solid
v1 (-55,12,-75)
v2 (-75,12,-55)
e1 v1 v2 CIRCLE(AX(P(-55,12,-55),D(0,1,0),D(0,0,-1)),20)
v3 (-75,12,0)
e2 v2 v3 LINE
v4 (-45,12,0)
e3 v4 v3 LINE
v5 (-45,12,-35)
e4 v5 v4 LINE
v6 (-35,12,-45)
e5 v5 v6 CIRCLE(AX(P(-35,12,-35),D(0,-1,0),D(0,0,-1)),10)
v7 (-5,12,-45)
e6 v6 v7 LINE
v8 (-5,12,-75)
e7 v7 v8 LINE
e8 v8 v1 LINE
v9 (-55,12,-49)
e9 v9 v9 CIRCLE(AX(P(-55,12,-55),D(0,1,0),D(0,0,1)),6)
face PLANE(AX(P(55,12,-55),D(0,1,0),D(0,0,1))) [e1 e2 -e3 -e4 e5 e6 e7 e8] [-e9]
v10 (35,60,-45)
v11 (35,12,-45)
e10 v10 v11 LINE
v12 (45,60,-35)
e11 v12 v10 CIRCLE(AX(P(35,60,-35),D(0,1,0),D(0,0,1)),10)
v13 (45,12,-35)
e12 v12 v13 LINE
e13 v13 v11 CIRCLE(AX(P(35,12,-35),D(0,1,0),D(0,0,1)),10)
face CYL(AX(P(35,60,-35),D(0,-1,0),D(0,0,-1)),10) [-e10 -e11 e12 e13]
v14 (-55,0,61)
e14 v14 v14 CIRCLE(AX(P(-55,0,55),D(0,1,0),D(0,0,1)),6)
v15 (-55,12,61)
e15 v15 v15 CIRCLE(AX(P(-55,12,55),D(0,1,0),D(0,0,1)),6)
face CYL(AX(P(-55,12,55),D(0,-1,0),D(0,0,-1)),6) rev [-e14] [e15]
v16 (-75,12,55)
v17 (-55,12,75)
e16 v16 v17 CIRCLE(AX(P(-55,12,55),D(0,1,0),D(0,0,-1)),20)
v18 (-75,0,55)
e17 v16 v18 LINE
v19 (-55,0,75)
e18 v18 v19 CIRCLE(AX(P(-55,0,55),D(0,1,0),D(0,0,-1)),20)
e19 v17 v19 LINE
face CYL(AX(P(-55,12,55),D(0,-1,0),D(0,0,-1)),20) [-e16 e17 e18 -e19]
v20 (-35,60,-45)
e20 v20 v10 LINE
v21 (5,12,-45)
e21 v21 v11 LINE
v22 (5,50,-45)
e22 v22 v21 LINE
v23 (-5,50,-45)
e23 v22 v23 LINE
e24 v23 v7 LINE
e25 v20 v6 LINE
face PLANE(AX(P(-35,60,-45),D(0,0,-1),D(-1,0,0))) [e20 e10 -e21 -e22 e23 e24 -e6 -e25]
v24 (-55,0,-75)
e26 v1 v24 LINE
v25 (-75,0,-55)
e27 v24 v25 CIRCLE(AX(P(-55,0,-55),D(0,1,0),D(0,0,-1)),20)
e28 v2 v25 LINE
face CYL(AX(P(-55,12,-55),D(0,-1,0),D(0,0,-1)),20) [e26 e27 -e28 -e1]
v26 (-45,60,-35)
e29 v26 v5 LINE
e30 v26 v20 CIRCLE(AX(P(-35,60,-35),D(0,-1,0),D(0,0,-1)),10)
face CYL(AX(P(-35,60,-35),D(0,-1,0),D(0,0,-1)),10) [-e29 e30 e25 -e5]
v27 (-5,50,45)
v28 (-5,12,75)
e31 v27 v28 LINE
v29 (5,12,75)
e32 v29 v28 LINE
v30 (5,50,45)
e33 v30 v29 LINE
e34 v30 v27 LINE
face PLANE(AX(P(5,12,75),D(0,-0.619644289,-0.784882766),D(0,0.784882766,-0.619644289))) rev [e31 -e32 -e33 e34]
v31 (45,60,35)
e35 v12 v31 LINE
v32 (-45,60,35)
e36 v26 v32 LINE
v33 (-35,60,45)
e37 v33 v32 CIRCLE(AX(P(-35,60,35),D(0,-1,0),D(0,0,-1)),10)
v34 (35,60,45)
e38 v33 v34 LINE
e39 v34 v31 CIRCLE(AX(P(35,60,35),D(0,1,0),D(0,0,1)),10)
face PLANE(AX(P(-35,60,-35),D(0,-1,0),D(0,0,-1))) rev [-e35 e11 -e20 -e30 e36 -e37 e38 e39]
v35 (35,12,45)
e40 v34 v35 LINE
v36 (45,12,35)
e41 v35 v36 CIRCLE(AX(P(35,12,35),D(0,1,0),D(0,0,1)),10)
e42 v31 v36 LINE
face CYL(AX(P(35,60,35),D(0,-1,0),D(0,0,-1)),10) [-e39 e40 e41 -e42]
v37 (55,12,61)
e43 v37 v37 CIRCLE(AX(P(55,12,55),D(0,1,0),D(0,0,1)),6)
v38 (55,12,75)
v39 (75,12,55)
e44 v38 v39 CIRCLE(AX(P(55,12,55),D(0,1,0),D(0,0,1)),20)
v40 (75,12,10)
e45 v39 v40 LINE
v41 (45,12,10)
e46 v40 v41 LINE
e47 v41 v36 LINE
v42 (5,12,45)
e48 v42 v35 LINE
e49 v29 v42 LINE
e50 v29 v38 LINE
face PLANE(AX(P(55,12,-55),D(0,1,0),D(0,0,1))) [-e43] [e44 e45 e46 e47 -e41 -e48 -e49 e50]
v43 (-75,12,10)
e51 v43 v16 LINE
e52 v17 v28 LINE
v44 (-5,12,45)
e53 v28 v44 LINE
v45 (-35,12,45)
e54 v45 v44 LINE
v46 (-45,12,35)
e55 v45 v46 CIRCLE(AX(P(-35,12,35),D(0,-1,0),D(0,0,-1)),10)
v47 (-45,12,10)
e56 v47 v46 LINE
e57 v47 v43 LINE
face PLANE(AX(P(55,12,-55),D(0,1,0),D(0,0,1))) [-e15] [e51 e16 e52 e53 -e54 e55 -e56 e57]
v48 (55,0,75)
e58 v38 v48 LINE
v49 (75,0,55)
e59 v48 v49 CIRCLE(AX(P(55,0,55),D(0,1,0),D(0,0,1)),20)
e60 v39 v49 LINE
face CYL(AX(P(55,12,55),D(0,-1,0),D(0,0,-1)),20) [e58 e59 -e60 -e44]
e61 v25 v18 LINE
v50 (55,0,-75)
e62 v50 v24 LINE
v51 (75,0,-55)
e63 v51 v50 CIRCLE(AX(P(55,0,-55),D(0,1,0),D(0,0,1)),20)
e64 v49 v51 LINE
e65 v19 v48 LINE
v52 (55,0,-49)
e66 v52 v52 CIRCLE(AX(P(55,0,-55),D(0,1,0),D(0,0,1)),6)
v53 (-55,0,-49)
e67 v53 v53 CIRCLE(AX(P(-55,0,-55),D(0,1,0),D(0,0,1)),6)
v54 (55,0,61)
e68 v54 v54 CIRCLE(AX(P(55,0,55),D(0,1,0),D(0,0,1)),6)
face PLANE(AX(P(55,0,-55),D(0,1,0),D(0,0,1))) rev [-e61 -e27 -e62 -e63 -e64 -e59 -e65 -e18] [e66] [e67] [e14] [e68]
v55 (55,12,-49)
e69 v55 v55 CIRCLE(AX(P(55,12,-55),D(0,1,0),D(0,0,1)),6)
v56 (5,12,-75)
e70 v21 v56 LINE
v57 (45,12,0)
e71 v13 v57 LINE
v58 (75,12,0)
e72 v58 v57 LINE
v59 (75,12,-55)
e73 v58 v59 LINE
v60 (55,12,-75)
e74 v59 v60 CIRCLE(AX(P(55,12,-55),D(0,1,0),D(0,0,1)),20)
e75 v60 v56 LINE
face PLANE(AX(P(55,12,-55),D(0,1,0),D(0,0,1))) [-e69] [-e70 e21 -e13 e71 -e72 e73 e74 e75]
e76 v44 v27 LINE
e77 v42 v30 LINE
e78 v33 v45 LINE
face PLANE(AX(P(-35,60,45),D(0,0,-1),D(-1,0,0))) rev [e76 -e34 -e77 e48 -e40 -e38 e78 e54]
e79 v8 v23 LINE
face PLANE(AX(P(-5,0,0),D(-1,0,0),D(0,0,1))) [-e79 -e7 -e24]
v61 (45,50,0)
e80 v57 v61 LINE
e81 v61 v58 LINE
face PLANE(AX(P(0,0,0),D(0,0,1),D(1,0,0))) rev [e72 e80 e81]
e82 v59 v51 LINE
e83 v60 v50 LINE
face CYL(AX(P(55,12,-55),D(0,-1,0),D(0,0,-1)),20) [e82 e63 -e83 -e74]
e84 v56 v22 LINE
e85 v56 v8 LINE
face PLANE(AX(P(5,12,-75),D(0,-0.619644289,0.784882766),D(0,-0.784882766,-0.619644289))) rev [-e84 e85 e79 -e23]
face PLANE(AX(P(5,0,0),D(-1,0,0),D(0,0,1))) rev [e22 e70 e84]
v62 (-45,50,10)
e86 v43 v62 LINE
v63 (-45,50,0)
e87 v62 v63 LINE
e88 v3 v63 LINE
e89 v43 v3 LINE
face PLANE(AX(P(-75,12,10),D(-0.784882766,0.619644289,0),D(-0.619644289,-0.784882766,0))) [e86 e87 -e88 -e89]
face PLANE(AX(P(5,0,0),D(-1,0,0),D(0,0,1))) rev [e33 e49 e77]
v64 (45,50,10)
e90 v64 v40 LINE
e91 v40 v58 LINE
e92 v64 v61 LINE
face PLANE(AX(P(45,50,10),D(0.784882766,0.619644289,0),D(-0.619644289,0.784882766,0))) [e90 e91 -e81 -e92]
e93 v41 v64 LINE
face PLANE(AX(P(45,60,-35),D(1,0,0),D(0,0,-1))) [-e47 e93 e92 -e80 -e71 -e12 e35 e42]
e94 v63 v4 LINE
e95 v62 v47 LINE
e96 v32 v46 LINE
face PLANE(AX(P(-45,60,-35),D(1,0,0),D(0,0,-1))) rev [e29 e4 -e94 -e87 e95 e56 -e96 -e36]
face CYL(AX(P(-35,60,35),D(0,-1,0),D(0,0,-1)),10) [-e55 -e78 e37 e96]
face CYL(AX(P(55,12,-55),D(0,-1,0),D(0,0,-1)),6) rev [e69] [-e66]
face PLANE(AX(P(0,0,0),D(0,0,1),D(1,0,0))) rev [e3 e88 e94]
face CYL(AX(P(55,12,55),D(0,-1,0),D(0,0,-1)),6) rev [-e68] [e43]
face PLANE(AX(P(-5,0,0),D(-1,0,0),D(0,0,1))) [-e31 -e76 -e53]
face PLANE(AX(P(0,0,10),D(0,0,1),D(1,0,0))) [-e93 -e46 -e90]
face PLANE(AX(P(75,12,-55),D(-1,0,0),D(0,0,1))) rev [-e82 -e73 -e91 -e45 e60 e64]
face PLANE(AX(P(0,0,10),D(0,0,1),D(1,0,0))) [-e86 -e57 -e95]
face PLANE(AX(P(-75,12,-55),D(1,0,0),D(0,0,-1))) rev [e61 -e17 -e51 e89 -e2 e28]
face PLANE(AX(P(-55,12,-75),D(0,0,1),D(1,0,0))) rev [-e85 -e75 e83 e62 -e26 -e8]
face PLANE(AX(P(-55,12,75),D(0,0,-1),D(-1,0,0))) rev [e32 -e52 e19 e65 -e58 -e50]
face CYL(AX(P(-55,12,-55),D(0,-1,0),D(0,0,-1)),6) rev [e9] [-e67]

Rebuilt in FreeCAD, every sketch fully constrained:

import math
import FreeCAD as App
import Part
import Sketcher
from FreeCAD import Vector
Q = App.Units.Quantity


def add_polygon(sketch, points):
    """Adds a closed chain of lines whose ends are joined by coincident constraints."""
    first, n = sketch.GeometryCount, len(points)
    for a, b in zip(points, points[1:] + points[:1]):
        sketch.addGeometry(Part.LineSegment(App.Vector(*a, 0), App.Vector(*b, 0)), False)
    for i in range(n):
        sketch.addConstraint(Sketcher.Constraint("Coincident", first + i, 2, first + (i + 1) % n, 1))

doc = App.newDocument("Part")
params = doc.addObject("Spreadsheet::Sheet", "Params")
for row, (alias, value) in enumerate([
    ("sketch1_diameter", "12 mm"),
    ("sketch1_radius", "20 mm"),
    ("sketch1_width", "110 mm"),
    ("pad1_length", "12 mm"),
    ("sketch2_radius", "10 mm"),
    ("sketch2_width", "70 mm"),
    ("pad2_length", "48 mm"),
    ("sketch3_width", "38 mm"),
    ("sketch3_height", "30 mm"),
    ("pad3_length", "10 mm"),
    ("sketch4_width", "30 mm"),
    ("sketch4_height", "38 mm"),
    ("pad4_length", "10 mm"),
], start=1):
    params.set(f"A{row}", alias)
    params.set(f"B{row}", "=" + value)
    params.setAlias(f"B{row}", alias)

body = doc.addObject("PartDesign::Body", "Body")

# Sketch on XZ plane
sketch1 = body.newObject("Sketcher::SketchObject", "Sketch")
sketch1.AttachmentSupport = (doc.getObject("XZ_Plane"), [""])
sketch1.MapMode = "FlatFace"
sketch1.addGeometry([
    Part.LineSegment(Vector(55, -75, 0), Vector(-55, -75, 0)),  # 0
    Part.ArcOfCircle(Part.Circle(Vector(-55, -55, 0), Vector(0, 0, 1), 20), math.radians(180), math.radians(270)),  # 1
    Part.LineSegment(Vector(-75, -55, 0), Vector(-75, 55, 0)),  # 2
    Part.ArcOfCircle(Part.Circle(Vector(-55, 55, 0), Vector(0, 0, 1), 20), math.radians(90), math.radians(180)),  # 3
    Part.LineSegment(Vector(-55, 75, 0), Vector(55, 75, 0)),  # 4
    Part.ArcOfCircle(Part.Circle(Vector(55, 55, 0), Vector(0, 0, 1), 20), math.radians(0), math.radians(90)),  # 5
    Part.LineSegment(Vector(75, 55, 0), Vector(75, -55, 0)),  # 6
    Part.ArcOfCircle(Part.Circle(Vector(55, -55, 0), Vector(0, 0, 1), 20), math.radians(-90), math.radians(0)),  # 7
    Part.Circle(Vector(55, 55, 0), Vector(0, 0, 1), 6),  # 8
    Part.Circle(Vector(-55, 55, 0), Vector(0, 0, 1), 6),  # 9
    Part.Circle(Vector(55, -55, 0), Vector(0, 0, 1), 6),  # 10
    Part.Circle(Vector(-55, -55, 0), Vector(0, 0, 1), 6),  # 11
], False)
sketch1.addConstraint([
    Sketcher.Constraint("Tangent", 0, 2, 1, 2),
    Sketcher.Constraint("Tangent", 1, 1, 2, 1),
    Sketcher.Constraint("Tangent", 2, 2, 3, 2),
    Sketcher.Constraint("Tangent", 3, 1, 4, 1),
    Sketcher.Constraint("Tangent", 4, 2, 5, 2),
    Sketcher.Constraint("Tangent", 5, 1, 6, 1),
    Sketcher.Constraint("Tangent", 6, 2, 7, 2),
    Sketcher.Constraint("Tangent", 7, 1, 0, 1),
    Sketcher.Constraint("Horizontal", 0),
    Sketcher.Constraint("Vertical", 2),
    Sketcher.Constraint("Horizontal", 4),
    Sketcher.Constraint("Vertical", 6),
    Sketcher.Constraint("Coincident", 8, 3, 5, 3),
    Sketcher.Constraint("Coincident", 9, 3, 3, 3),
    Sketcher.Constraint("Coincident", 10, 3, 7, 3),
    Sketcher.Constraint("Coincident", 11, 3, 1, 3),
    Sketcher.Constraint("Equal", 1, 3),
    Sketcher.Constraint("Equal", 3, 5),
    Sketcher.Constraint("Equal", 5, 7),
    Sketcher.Constraint("Equal", 8, 9),
    Sketcher.Constraint("Equal", 9, 10),
    Sketcher.Constraint("Equal", 10, 11),
    Sketcher.Constraint("Symmetric", 1, 3, 5, 3, -1, 1),
    Sketcher.Constraint("Equal", 4, 2),
    Sketcher.Constraint("Diameter", 8, Q("12 mm")),
    Sketcher.Constraint("Radius", 1, Q("20 mm")),
    Sketcher.Constraint("DistanceX", 0, 2, 0, 1, Q("110 mm")),
])
sketch1.setExpression("Constraints[24]", "Params.sketch1_diameter")
sketch1.setExpression("Constraints[25]", "Params.sketch1_radius")
sketch1.setExpression("Constraints[26]", "Params.sketch1_width")
pad1 = body.newObject("PartDesign::Pad", "Pad")
pad1.Profile = sketch1
pad1.setExpression("Length", "Params.pad1_length")
pad1.Reversed = True

# Sketch on XZ plane
sketch2 = body.newObject("Sketcher::SketchObject", "Sketch001")
sketch2.AttachmentSupport = (doc.getObject("XZ_Plane"), [""])
sketch2.MapMode = "FlatFace"
sketch2.AttachmentOffset = App.Placement(Vector(0, 0, -12), App.Rotation())
sketch2.addGeometry([
    Part.LineSegment(Vector(35, -45, 0), Vector(-35, -45, 0)),  # 0
    Part.ArcOfCircle(Part.Circle(Vector(-35, -35, 0), Vector(0, 0, 1), 10), math.radians(180), math.radians(270)),  # 1
    Part.LineSegment(Vector(-45, -35, 0), Vector(-45, 35, 0)),  # 2
    Part.ArcOfCircle(Part.Circle(Vector(-35, 35, 0), Vector(0, 0, 1), 10), math.radians(90), math.radians(180)),  # 3
    Part.LineSegment(Vector(-35, 45, 0), Vector(35, 45, 0)),  # 4
    Part.ArcOfCircle(Part.Circle(Vector(35, 35, 0), Vector(0, 0, 1), 10), math.radians(0), math.radians(90)),  # 5
    Part.LineSegment(Vector(45, 35, 0), Vector(45, -35, 0)),  # 6
    Part.ArcOfCircle(Part.Circle(Vector(35, -35, 0), Vector(0, 0, 1), 10), math.radians(-90), math.radians(0)),  # 7
], False)
sketch2.addConstraint([
    Sketcher.Constraint("Tangent", 0, 2, 1, 2),
    Sketcher.Constraint("Tangent", 1, 1, 2, 1),
    Sketcher.Constraint("Tangent", 2, 2, 3, 2),
    Sketcher.Constraint("Tangent", 3, 1, 4, 1),
    Sketcher.Constraint("Tangent", 4, 2, 5, 2),
    Sketcher.Constraint("Tangent", 5, 1, 6, 1),
    Sketcher.Constraint("Tangent", 6, 2, 7, 2),
    Sketcher.Constraint("Tangent", 7, 1, 0, 1),
    Sketcher.Constraint("Horizontal", 0),
    Sketcher.Constraint("Vertical", 2),
    Sketcher.Constraint("Horizontal", 4),
    Sketcher.Constraint("Vertical", 6),
    Sketcher.Constraint("Equal", 1, 3),
    Sketcher.Constraint("Equal", 3, 5),
    Sketcher.Constraint("Equal", 5, 7),
    Sketcher.Constraint("Symmetric", 1, 3, 5, 3, -1, 1),
    Sketcher.Constraint("Equal", 4, 2),
    Sketcher.Constraint("Radius", 1, Q("10 mm")),
    Sketcher.Constraint("DistanceX", 0, 2, 0, 1, Q("70 mm")),
])
sketch2.setExpression("Constraints[17]", "Params.sketch2_radius")
sketch2.setExpression("Constraints[18]", "Params.sketch2_width")
pad2 = body.newObject("PartDesign::Pad", "Pad001")
pad2.Profile = sketch2
pad2.setExpression("Length", "Params.pad2_length")
pad2.Reversed = True

# Sketch on YZ plane
sketch3 = body.newObject("Sketcher::SketchObject", "Sketch002")
sketch3.AttachmentSupport = (doc.getObject("YZ_Plane"), [""])
sketch3.MapMode = "FlatFace"
add_polygon(sketch3, [(50, -45), (12, -45), (12, -75)])  # lines 0-2
add_polygon(sketch3, [(12, 75), (12, 45), (50, 45)])  # lines 3-5
sketch3.addConstraint([
    Sketcher.Constraint("Horizontal", 0),
    Sketcher.Constraint("Vertical", 1),
    Sketcher.Constraint("Vertical", 3),
    Sketcher.Constraint("Horizontal", 4),
    Sketcher.Constraint("Symmetric", 0, 2, 3, 2, -1),
    Sketcher.Constraint("Vertical", 2, 2, 4, 2),
    Sketcher.Constraint("Equal", 1, 3),
    Sketcher.Constraint("DistanceX", 0, 2, 0, 1, Q("38 mm")),
    Sketcher.Constraint("DistanceY", 1, 2, 1, 1, Q("30 mm")),
    Sketcher.Constraint("DistanceX", -1, 1, 0, 2, Q("12 mm")),
    Sketcher.Constraint("DistanceY", 0, 2, -1, 1, Q("45 mm")),
])
sketch3.setExpression("Constraints[13]", "Params.sketch3_width")
sketch3.setExpression("Constraints[14]", "Params.sketch3_height")
pad3 = body.newObject("PartDesign::Pad", "Pad002")
pad3.Profile = sketch3
pad3.setExpression("Length", "Params.pad3_length")
pad3.Midplane = True

# Sketch on XY plane
sketch4 = body.newObject("Sketcher::SketchObject", "Sketch003")
sketch4.AttachmentSupport = (doc.getObject("XY_Plane"), [""])
sketch4.MapMode = "FlatFace"
add_polygon(sketch4, [(75, 12), (45, 50), (45, 12)])  # lines 0-2
add_polygon(sketch4, [(-45, 12), (-45, 50), (-75, 12)])  # lines 3-5
sketch4.addConstraint([
    Sketcher.Constraint("Vertical", 1),
    Sketcher.Constraint("Horizontal", 2),
    Sketcher.Constraint("Vertical", 3),
    Sketcher.Constraint("Horizontal", 5),
    Sketcher.Constraint("Symmetric", 0, 2, 3, 2, -2),
    Sketcher.Constraint("Symmetric", 2, 2, 4, 2, -2),
    Sketcher.Constraint("DistanceX", 2, 1, 2, 2, Q("30 mm")),
    Sketcher.Constraint("DistanceY", 1, 2, 1, 1, Q("38 mm")),
    Sketcher.Constraint("DistanceX", -1, 1, 0, 2, Q("45 mm")),
    Sketcher.Constraint("DistanceY", -1, 1, 0, 2, Q("50 mm")),
])
sketch4.setExpression("Constraints[12]", "Params.sketch4_width")
sketch4.setExpression("Constraints[13]", "Params.sketch4_height")
pad4 = body.newObject("PartDesign::Pad", "Pad003")
pad4.Profile = sketch4
pad4.setExpression("Length", "Params.pad4_length")

doc.recompute()
